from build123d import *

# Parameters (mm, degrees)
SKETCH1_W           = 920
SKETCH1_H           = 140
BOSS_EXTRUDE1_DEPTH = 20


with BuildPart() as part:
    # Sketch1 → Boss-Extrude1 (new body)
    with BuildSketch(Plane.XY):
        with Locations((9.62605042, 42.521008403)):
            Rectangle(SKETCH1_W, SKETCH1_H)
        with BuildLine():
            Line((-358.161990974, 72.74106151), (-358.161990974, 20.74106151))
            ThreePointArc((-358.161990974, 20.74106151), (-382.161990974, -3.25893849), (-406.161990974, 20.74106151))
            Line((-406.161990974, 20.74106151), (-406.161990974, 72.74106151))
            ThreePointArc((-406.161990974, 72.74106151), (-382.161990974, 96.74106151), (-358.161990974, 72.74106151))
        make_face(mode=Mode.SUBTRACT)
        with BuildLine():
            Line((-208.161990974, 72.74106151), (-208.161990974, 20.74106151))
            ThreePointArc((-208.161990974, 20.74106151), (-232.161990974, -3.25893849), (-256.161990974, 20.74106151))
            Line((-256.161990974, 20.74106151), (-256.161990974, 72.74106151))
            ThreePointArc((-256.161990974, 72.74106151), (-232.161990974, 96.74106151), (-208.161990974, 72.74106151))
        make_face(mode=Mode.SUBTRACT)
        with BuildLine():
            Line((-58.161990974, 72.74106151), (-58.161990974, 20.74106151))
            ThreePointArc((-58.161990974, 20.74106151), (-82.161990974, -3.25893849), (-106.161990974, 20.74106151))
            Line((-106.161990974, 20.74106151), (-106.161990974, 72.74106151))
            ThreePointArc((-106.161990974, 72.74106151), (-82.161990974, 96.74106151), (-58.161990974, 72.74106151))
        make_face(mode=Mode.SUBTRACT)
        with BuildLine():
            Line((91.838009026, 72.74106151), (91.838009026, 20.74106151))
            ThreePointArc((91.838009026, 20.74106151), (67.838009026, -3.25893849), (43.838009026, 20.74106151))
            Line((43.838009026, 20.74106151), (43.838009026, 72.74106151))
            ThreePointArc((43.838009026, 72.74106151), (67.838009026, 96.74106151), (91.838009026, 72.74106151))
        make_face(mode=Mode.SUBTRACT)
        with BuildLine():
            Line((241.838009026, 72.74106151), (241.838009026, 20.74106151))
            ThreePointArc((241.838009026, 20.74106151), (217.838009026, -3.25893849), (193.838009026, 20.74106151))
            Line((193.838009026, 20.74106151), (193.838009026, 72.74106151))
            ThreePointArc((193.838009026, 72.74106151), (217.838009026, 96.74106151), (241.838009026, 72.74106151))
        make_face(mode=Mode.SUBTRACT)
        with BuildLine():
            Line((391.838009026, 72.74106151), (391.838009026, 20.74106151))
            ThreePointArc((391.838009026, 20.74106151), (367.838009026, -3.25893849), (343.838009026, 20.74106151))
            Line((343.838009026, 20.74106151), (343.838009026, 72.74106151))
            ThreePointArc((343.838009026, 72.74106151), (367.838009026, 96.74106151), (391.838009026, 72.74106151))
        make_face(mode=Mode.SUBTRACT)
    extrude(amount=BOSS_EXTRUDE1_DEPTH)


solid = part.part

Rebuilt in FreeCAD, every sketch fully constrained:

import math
import FreeCAD as App
import Part
import Sketcher
from FreeCAD import Vector

doc = App.newDocument("Part")
body = doc.addObject("PartDesign::Body", "Body")

sketch1 = body.newObject("Sketcher::SketchObject", "Sketch")
sketch1.AttachmentSupport = (doc.getObject("XY_Plane"), [""])
sketch1.MapMode = "FlatFace"
sketch1.addGeometry([
    Part.LineSegment(Vector(-450, 113, 0), Vector(-450, -27, 0)),
    Part.LineSegment(Vector(-450, -27, 0), Vector(470, -27, 0)),
    Part.LineSegment(Vector(470, -27, 0), Vector(470, 113, 0)),
    Part.LineSegment(Vector(470, 113, 0), Vector(-450, 113, 0)),
    Part.ArcOfCircle(Part.Circle(Vector(-382, 73, 0), Vector(0, 0, 1), 24), math.radians(0), math.radians(180)),
    Part.LineSegment(Vector(-358, 73, 0), Vector(-358, 21, 0)),
    Part.ArcOfCircle(Part.Circle(Vector(-382, 21, 0), Vector(0, 0, 1), 24), math.radians(180), math.radians(360)),
    Part.LineSegment(Vector(-406, 21, 0), Vector(-406, 73, 0)),
    Part.ArcOfCircle(Part.Circle(Vector(-232, 73, 0), Vector(0, 0, 1), 24), math.radians(0), math.radians(180)),
    Part.LineSegment(Vector(-208, 73, 0), Vector(-208, 21, 0)),
    Part.ArcOfCircle(Part.Circle(Vector(-232, 21, 0), Vector(0, 0, 1), 24), math.radians(180), math.radians(360)),
    Part.LineSegment(Vector(-256, 21, 0), Vector(-256, 73, 0)),
    Part.ArcOfCircle(Part.Circle(Vector(-82, 73, 0), Vector(0, 0, 1), 24), math.radians(0), math.radians(180)),
    Part.LineSegment(Vector(-58, 73, 0), Vector(-58, 21, 0)),
    Part.ArcOfCircle(Part.Circle(Vector(-82, 21, 0), Vector(0, 0, 1), 24), math.radians(180), math.radians(360)),
    Part.LineSegment(Vector(-106, 21, 0), Vector(-106, 73, 0)),
    Part.ArcOfCircle(Part.Circle(Vector(68, 73, 0), Vector(0, 0, 1), 24), math.radians(0), math.radians(180)),
    Part.LineSegment(Vector(92, 73, 0), Vector(92, 21, 0)),
    Part.ArcOfCircle(Part.Circle(Vector(68, 21, 0), Vector(0, 0, 1), 24), math.radians(180), math.radians(360)),
    Part.LineSegment(Vector(44, 21, 0), Vector(44, 73, 0)),
    Part.ArcOfCircle(Part.Circle(Vector(218, 73, 0), Vector(0, 0, 1), 24), math.radians(0), math.radians(180)),
    Part.LineSegment(Vector(242, 73, 0), Vector(242, 21, 0)),
    Part.ArcOfCircle(Part.Circle(Vector(218, 21, 0), Vector(0, 0, 1), 24), math.radians(180), math.radians(360)),
    Part.LineSegment(Vector(194, 21, 0), Vector(194, 73, 0)),
    Part.ArcOfCircle(Part.Circle(Vector(368, 73, 0), Vector(0, 0, 1), 24), math.radians(0), math.radians(180)),
    Part.LineSegment(Vector(392, 73, 0), Vector(392, 21, 0)),
    Part.ArcOfCircle(Part.Circle(Vector(368, 21, 0), Vector(0, 0, 1), 24), math.radians(180), math.radians(360)),
    Part.LineSegment(Vector(344, 21, 0), Vector(344, 73, 0)),
], False)
sketch1.addConstraint([
    Sketcher.Constraint("Coincident", 0, 2, 1, 1),
    Sketcher.Constraint("Coincident", 1, 2, 2, 1),
    Sketcher.Constraint("Coincident", 2, 2, 3, 1),
    Sketcher.Constraint("Coincident", 3, 2, 0, 1),
    Sketcher.Constraint("Tangent", 4, 1, 5, 1),
    Sketcher.Constraint("Tangent", 5, 2, 6, 2),
    Sketcher.Constraint("Tangent", 6, 1, 7, 1),
    Sketcher.Constraint("Tangent", 7, 2, 4, 2),
    Sketcher.Constraint("Tangent", 8, 1, 9, 1),
    Sketcher.Constraint("Tangent", 9, 2, 10, 2),
    Sketcher.Constraint("Tangent", 10, 1, 11, 1),
    Sketcher.Constraint("Tangent", 11, 2, 8, 2),
    Sketcher.Constraint("Tangent", 12, 1, 13, 1),
    Sketcher.Constraint("Tangent", 13, 2, 14, 2),
    Sketcher.Constraint("Tangent", 14, 1, 15, 1),
    Sketcher.Constraint("Tangent", 15, 2, 12, 2),
    Sketcher.Constraint("Tangent", 16, 1, 17, 1),
    Sketcher.Constraint("Tangent", 17, 2, 18, 2),
    Sketcher.Constraint("Tangent", 18, 1, 19, 1),
    Sketcher.Constraint("Tangent", 19, 2, 16, 2),
    Sketcher.Constraint("Tangent", 20, 1, 21, 1),
    Sketcher.Constraint("Tangent", 21, 2, 22, 2),
    Sketcher.Constraint("Tangent", 22, 1, 23, 1),
    Sketcher.Constraint("Tangent", 23, 2, 20, 2),
    Sketcher.Constraint("Tangent", 24, 1, 25, 1),
    Sketcher.Constraint("Tangent", 25, 2, 26, 2),
    Sketcher.Constraint("Tangent", 26, 1, 27, 1),
    Sketcher.Constraint("Tangent", 27, 2, 24, 2),
    Sketcher.Constraint("Vertical", 0),
    Sketcher.Constraint("Horizontal", 1),
    Sketcher.Constraint("Vertical", 2),
    Sketcher.Constraint("Horizontal", 3),
    Sketcher.Constraint("Vertical", 5),
    Sketcher.Constraint("Vertical", 7),
    Sketcher.Constraint("Vertical", 9),
    Sketcher.Constraint("Vertical", 11),
    Sketcher.Constraint("Vertical", 13),
    Sketcher.Constraint("Vertical", 15),
    Sketcher.Constraint("Vertical", 17),
    Sketcher.Constraint("Vertical", 19),
    Sketcher.Constraint("Vertical", 21),
    Sketcher.Constraint("Vertical", 23),
    Sketcher.Constraint("Vertical", 25),
    Sketcher.Constraint("Vertical", 27),
    Sketcher.Constraint("Equal", 6, 8),
    Sketcher.Constraint("Equal", 10, 12),
    Sketcher.Constraint("Equal", 14, 16),
    Sketcher.Constraint("Equal", 18, 20),
    Sketcher.Constraint("Equal", 22, 24),
    Sketcher.Constraint("Horizontal", 4, 3, 8, 3),
    Sketcher.Constraint("Horizontal", 6, 3, 10, 3),
    Sketcher.Constraint("Horizontal", 8, 3, 12, 3),
    Sketcher.Constraint("Horizontal", 10, 3, 14, 3),
    Sketcher.Constraint("Horizontal", 12, 3, 16, 3),
    Sketcher.Constraint("Horizontal", 14, 3, 18, 3),
    Sketcher.Constraint("Horizontal", 16, 3, 20, 3),
    Sketcher.Constraint("Horizontal", 18, 3, 22, 3),
    Sketcher.Constraint("Horizontal", 20, 3, 24, 3),
    Sketcher.Constraint("Horizontal", 22, 3, 26, 3),
    Sketcher.Constraint("Radius", 4, 24.0),
    Sketcher.Constraint("DistanceX", 1, 1, 1, 2, 920.0),
    Sketcher.Constraint("DistanceY", 0, 2, 0, 1, 140.0),
    Sketcher.Constraint("DistanceY", 5, 2, 5, 1, 52.0),
    Sketcher.Constraint("DistanceX", 4, 3, 8, 3, 150.0),
    Sketcher.Constraint("DistanceX", 8, 3, 12, 3, 150.0),
    Sketcher.Constraint("DistanceX", 12, 3, 16, 3, 150.0),
    Sketcher.Constraint("DistanceX", 16, 3, 20, 3, 150.0),
    Sketcher.Constraint("DistanceX", 20, 3, 24, 3, 150.0),
    Sketcher.Constraint("DistanceX", 4, 3, -1, 1, 382.161991),
    Sketcher.Constraint("DistanceY", -1, 1, 4, 3, 72.741062),
    Sketcher.Constraint("DistanceX", 0, 2, -1, 1, 450.37395),
    Sketcher.Constraint("DistanceY", 0, 2, -1, 1, 27.478992),
])
pad1 = body.newObject("PartDesign::Pad", "Pad")
pad1.Profile = sketch1
pad1.Length = 20

doc.recompute()
